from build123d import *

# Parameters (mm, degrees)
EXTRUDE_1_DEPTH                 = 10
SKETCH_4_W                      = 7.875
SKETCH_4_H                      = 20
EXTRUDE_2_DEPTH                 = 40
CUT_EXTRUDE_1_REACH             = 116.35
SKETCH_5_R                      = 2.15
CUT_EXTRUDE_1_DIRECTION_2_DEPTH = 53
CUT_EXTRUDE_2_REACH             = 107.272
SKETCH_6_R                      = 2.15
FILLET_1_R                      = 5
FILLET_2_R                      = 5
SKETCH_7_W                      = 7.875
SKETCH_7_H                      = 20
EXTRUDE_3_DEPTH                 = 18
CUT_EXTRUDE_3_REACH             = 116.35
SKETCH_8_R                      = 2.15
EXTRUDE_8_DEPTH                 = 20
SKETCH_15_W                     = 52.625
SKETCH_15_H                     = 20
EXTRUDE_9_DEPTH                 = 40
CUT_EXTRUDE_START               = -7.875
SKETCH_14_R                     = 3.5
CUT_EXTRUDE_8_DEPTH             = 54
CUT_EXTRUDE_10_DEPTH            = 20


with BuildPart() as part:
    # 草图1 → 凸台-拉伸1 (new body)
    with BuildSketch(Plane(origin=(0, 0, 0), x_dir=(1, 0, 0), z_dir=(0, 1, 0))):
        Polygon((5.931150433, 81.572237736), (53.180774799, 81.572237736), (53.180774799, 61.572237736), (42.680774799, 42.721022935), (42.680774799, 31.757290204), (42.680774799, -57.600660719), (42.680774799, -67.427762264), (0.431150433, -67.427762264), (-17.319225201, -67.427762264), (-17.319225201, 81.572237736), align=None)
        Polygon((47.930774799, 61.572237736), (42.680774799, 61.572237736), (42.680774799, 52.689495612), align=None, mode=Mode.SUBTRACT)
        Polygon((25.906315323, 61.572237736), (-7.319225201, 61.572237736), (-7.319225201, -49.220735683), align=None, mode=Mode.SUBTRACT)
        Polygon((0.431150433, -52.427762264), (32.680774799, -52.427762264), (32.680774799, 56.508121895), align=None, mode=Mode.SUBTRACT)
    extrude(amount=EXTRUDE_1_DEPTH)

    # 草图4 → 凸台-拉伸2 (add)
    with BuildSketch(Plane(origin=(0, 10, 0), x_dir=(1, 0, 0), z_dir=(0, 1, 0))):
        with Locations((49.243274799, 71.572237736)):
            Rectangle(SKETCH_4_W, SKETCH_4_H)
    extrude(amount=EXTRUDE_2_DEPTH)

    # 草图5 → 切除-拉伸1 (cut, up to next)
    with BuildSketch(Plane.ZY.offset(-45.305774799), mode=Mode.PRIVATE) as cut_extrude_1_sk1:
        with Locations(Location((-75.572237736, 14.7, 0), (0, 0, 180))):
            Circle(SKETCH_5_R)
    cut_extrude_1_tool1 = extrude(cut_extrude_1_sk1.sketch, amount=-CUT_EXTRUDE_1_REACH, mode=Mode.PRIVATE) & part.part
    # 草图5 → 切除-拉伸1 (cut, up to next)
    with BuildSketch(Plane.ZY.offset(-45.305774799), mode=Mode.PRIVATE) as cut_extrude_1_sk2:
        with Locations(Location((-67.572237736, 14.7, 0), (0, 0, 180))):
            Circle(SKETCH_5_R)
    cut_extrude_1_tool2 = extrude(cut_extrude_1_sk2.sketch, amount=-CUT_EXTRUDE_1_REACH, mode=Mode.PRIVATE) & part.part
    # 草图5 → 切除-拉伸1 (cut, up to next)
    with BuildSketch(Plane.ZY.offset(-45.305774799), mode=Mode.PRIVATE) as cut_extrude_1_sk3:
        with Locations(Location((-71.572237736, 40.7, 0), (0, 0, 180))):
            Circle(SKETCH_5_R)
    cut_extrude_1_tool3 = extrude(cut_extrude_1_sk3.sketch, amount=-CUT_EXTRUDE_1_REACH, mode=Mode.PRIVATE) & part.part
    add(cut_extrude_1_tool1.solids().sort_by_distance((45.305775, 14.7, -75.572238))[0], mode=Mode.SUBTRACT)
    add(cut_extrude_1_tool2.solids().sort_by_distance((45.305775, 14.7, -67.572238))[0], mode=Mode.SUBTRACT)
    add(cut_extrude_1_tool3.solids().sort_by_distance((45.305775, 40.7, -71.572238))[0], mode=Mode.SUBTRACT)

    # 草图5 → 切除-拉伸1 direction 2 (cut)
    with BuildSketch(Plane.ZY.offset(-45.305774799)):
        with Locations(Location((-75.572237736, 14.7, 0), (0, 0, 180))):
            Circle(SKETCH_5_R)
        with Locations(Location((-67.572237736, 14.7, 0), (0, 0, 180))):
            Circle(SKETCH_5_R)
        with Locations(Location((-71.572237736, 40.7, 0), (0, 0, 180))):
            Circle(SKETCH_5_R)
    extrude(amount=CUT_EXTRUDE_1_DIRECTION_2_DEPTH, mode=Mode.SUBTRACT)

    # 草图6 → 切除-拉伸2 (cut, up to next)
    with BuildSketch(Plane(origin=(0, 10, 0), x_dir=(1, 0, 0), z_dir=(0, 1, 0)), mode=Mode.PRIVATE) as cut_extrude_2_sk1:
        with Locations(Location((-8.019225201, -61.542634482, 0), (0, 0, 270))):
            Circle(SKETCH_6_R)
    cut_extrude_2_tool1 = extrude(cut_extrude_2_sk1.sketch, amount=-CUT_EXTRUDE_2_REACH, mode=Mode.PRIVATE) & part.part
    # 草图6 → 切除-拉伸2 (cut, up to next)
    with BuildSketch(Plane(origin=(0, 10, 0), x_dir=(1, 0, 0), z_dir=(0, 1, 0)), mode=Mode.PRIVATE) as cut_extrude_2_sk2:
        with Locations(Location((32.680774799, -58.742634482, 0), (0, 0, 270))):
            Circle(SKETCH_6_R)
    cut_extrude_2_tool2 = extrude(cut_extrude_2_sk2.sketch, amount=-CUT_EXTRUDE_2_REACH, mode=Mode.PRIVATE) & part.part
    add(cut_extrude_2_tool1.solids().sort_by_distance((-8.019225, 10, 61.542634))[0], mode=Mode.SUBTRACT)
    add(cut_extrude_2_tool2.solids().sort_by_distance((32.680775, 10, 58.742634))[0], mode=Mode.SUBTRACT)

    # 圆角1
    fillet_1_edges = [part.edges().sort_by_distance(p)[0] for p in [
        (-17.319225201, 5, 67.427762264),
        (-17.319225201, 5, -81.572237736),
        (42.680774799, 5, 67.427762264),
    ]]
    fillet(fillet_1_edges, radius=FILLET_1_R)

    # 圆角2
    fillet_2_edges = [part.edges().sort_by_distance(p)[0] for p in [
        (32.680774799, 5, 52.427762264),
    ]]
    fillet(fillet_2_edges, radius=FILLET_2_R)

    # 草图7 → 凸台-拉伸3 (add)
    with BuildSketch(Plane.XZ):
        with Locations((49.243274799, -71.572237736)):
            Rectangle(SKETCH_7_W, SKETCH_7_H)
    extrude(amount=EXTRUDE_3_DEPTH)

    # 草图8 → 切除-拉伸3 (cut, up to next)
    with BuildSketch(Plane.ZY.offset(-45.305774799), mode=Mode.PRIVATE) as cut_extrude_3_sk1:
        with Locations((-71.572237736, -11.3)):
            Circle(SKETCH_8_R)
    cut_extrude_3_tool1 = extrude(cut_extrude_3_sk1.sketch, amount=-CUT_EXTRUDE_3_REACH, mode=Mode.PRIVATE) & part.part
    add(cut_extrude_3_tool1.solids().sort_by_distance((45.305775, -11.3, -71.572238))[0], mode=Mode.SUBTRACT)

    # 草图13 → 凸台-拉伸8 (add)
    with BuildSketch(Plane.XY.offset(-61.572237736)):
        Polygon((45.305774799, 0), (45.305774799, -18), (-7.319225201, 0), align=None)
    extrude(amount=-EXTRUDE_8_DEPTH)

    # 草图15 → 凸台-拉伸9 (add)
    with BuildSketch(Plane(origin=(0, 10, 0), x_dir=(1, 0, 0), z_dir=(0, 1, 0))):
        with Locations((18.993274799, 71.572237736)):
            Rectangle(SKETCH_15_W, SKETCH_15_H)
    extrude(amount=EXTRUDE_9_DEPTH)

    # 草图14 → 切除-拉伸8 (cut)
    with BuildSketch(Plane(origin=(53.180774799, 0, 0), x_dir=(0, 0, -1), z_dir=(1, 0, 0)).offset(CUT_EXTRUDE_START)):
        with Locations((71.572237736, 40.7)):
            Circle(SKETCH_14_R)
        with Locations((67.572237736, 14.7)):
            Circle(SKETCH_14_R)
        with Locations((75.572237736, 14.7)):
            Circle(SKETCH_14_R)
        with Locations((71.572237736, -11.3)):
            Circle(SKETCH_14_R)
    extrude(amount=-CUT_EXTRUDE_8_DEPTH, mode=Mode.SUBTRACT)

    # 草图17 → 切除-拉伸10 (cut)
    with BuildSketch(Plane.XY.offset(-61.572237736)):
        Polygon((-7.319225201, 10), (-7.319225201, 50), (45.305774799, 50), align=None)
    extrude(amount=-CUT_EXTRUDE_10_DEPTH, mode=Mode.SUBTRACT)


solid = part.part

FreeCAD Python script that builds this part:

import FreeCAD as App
import Part
import Sketcher

V = App.Vector


def edges_at(feature, points):
    """Names of the edges that pass closest to the given points."""
    edges = feature.Shape.Edges
    near = lambda p: min(range(len(edges)), key=lambda i: edges[i].distToShape(Part.Vertex(*p))[0])
    return sorted({f"Edge{near(p) + 1}" for p in points})


def add_polygon(sketch, points):
    """Adds a closed chain of lines whose ends are joined by coincident constraints."""
    first, n = sketch.GeometryCount, len(points)
    for a, b in zip(points, points[1:] + points[:1]):
        sketch.addGeometry(Part.LineSegment(App.Vector(*a, 0), App.Vector(*b, 0)), False)
    for i in range(n):
        sketch.addConstraint(Sketcher.Constraint("Coincident", first + i, 2, first + (i + 1) % n, 1))

doc = App.newDocument("Part")
params = doc.addObject("Spreadsheet::Sheet", "Params")
for row, (alias, value) in enumerate([
    ("sketch1_width", "60 mm"),
    ("sketch1_height", "149 mm"),
    ("sketch1_height2", "20 mm"),
    ("sketch1_width2", "70.5 mm"),
    ("sketch1_width3", "5.25 mm"),
    ("pad1_length", "10 mm"),
    ("sketch2_height", "20 mm"),
    ("pad2_length", "40 mm"),
    ("sketch3_diameter", "4.3 mm"),
    ("sketch4_diameter", "4.3 mm"),
    ("sketch5_diameter", "4.3 mm"),
    ("sketch6_diameter", "4.3 mm"),
    ("pocket4_length", "53 mm"),
    ("sketch7_diameter", "4.3 mm"),
    ("sketch8_diameter", "4.3 mm"),
    ("fillet_radius", "5 mm"),
    ("fillet2_radius", "5 mm"),
    ("sketch9_height", "20 mm"),
    ("pad3_length", "18 mm"),
    ("sketch10_diameter", "4.3 mm"),
    ("sketch11_height", "18 mm"),
    ("pad4_length", "20 mm"),
    ("sketch12_height", "20 mm"),
    ("pad5_length", "40 mm"),
    ("sketch13_diameter", "7 mm"),
    ("pocket8_length", "54 mm"),
    ("sketch14_height", "40 mm"),
    ("pocket9_length", "20 mm"),
], start=1):
    params.set(f"A{row}", alias)
    params.set(f"B{row}", "=" + value)
    params.setAlias(f"B{row}", alias)

body = doc.addObject("PartDesign::Body", "Body")

sketch1 = body.newObject("Sketcher::SketchObject", "Sketch")
sketch1.AttachmentSupport = (doc.getObject("XZ_Plane"), [""])
sketch1.MapMode = "FlatFace"
add_polygon(sketch1, [(53.180775, -81.572238), (-17.319225, -81.572238), (-17.319225, 67.427762), (42.680775, 67.427762), (42.680775, -42.721023), (53.180775, -61.572238)])
add_polygon(sketch1, [(0.43115, 52.427762), (32.680775, -56.508122), (32.680775, 52.427762)])
add_polygon(sketch1, [(47.930775, -61.572238), (42.680775, -52.689496), (42.680775, -61.572238)])
add_polygon(sketch1, [(25.906315, -61.572238), (-7.319225, 49.220736), (-7.319225, -61.572238)])
sketch1.addConstraint(Sketcher.Constraint("Horizontal", 0))
sketch1.addConstraint(Sketcher.Constraint("Vertical", 1))
sketch1.addConstraint(Sketcher.Constraint("Horizontal", 2))
sketch1.addConstraint(Sketcher.Constraint("Vertical", 3))
sketch1.addConstraint(Sketcher.Constraint("Vertical", 5))
sketch1.addConstraint(Sketcher.Constraint("Vertical", 7))
sketch1.addConstraint(Sketcher.Constraint("Horizontal", 8))
sketch1.addConstraint(Sketcher.Constraint("Vertical", 10))
sketch1.addConstraint(Sketcher.Constraint("Horizontal", 11))
sketch1.addConstraint(Sketcher.Constraint("Vertical", 13))
sketch1.addConstraint(Sketcher.Constraint("Horizontal", 14))
sketch1.addConstraint(Sketcher.Constraint("Horizontal", 4, 2, 10, 2))
sketch1.addConstraint(Sketcher.Constraint("Horizontal", 11, 2, 13, 2))
sketch1.addConstraint(Sketcher.Constraint("Vertical", 3, 2, 9, 2))
sketch1.addConstraint(Sketcher.Constraint("DistanceX", 2, 1, 2, 2, 60.0))
sketch1.addConstraint(Sketcher.Constraint("DistanceY", 1, 1, 1, 2, 149.0))
sketch1.addConstraint(Sketcher.Constraint("DistanceY", 5, 2, 5, 1, 20.0))
sketch1.addConstraint(Sketcher.Constraint("DistanceX", 0, 2, 0, 1, 70.5))
sketch1.addConstraint(Sketcher.Constraint("DistanceX", 6, 2, 3, 2, 10.0))
sketch1.addConstraint(Sketcher.Constraint("DistanceY", 7, 2, 2, 2, 15.0))
sketch1.addConstraint(Sketcher.Constraint("DistanceX", 1, 2, 12, 2, 10.0))
sketch1.addConstraint(Sketcher.Constraint("DistanceX", 11, 1, 11, 2, 5.25))
sketch1.addConstraint(Sketcher.Constraint("DistanceX", 14, 1, 14, 2, 33.225541))
sketch1.addConstraint(Sketcher.Constraint("DistanceY", 6, 2, 3, 2, 13.787099))
sketch1.addConstraint(Sketcher.Constraint("Distance", 4, 21.57819))
sketch1.addConstraint(Sketcher.Constraint("Distance", 12, 115.667712))
sketch1.addConstraint(Sketcher.Constraint("DistanceX", 8, 2, 8, 1, 32.249624))
sketch1.addConstraint(Sketcher.Constraint("DistanceY", 10, 2, 10, 1, 8.882742))
sketch1.addConstraint(Sketcher.Constraint("DistanceY", 6, 2, -1, 1, 56.508122))
sketch1.addConstraint(Sketcher.Constraint("DistanceX", -1, 1, 8, 2, 0.43115))
sketch1.setExpression("Constraints[29]", "Params.sketch1_width")
sketch1.setExpression("Constraints[30]", "Params.sketch1_height")
sketch1.setExpression("Constraints[31]", "Params.sketch1_height2")
sketch1.setExpression("Constraints[32]", "Params.sketch1_width2")
sketch1.setExpression("Constraints[36]", "Params.sketch1_width3")
pad1 = body.newObject("PartDesign::Pad", "Pad")
pad1.Profile = sketch1
pad1.setExpression("Length", "Params.pad1_length")
pad1.Reversed = True

sketch2 = body.newObject("Sketcher::SketchObject", "Sketch001")
sketch2.AttachmentSupport = (doc.getObject("XZ_Plane"), [""])
sketch2.MapMode = "FlatFace"
sketch2.AttachmentOffset = App.Placement(V(0, 0, -10), App.Rotation())
add_polygon(sketch2, [(45.305775, -81.572238), (45.305775, -61.572238), (53.180775, -61.572238), (53.180775, -81.572238)])
sketch2.addConstraint(Sketcher.Constraint("Vertical", 0))
sketch2.addConstraint(Sketcher.Constraint("Horizontal", 1))
sketch2.addConstraint(Sketcher.Constraint("Vertical", 2))
sketch2.addConstraint(Sketcher.Constraint("Horizontal", 3))
sketch2.addConstraint(Sketcher.Constraint("DistanceY", 0, 1, 0, 2, 20.0))
sketch2.addConstraint(Sketcher.Constraint("DistanceX", 1, 1, 1, 2, 7.875))
sketch2.addConstraint(Sketcher.Constraint("DistanceX", -1, 1, 0, 2, 45.305775))
sketch2.addConstraint(Sketcher.Constraint("DistanceY", 0, 2, -1, 1, 61.572238))
sketch2.setExpression("Constraints[8]", "Params.sketch2_height")
pad2 = body.newObject("PartDesign::Pad", "Pad001")
pad2.Profile = sketch2
pad2.setExpression("Length", "Params.pad2_length")
pad2.Reversed = True

sketch3 = body.newObject("Sketcher::SketchObject", "Sketch002")
sketch3.AttachmentSupport = (doc.getObject("YZ_Plane"), [""])
sketch3.MapMode = "FlatFace"
sketch3.AttachmentOffset = App.Placement(V(0, 0, 45.305775), App.Rotation())
sketch3.addGeometry(Part.Circle(V(14.7, -75.572238, 0), V(0, 0, 1), 2.15), False)
sketch3.addConstraint(Sketcher.Constraint("Diameter", 0, 4.3))
sketch3.addConstraint(Sketcher.Constraint("DistanceX", -1, 1, 0, 3, 14.7))
sketch3.addConstraint(Sketcher.Constraint("DistanceY", 0, 3, -1, 1, 75.572238))
sketch3.setExpression("Constraints[0]", "Params.sketch3_diameter")
pocket1 = body.newObject("PartDesign::Pocket", "Pocket")
pocket1.Profile = sketch3
pocket1.Type = "UpToFirst"
pocket1.Reversed = True

sketch4 = body.newObject("Sketcher::SketchObject", "Sketch003")
sketch4.AttachmentSupport = (doc.getObject("YZ_Plane"), [""])
sketch4.MapMode = "FlatFace"
sketch4.AttachmentOffset = App.Placement(V(0, 0, 45.305775), App.Rotation())
sketch4.addGeometry(Part.Circle(V(14.7, -67.572238, 0), V(0, 0, 1), 2.15), False)
sketch4.addConstraint(Sketcher.Constraint("Diameter", 0, 4.3))
sketch4.addConstraint(Sketcher.Constraint("DistanceX", -1, 1, 0, 3, 14.7))
sketch4.addConstraint(Sketcher.Constraint("DistanceY", 0, 3, -1, 1, 67.572238))
sketch4.setExpression("Constraints[0]", "Params.sketch4_diameter")
pocket2 = body.newObject("PartDesign::Pocket", "Pocket001")
pocket2.Profile = sketch4
pocket2.Type = "UpToFirst"
pocket2.Reversed = True

sketch5 = body.newObject("Sketcher::SketchObject", "Sketch004")
sketch5.AttachmentSupport = (doc.getObject("YZ_Plane"), [""])
sketch5.MapMode = "FlatFace"
sketch5.AttachmentOffset = App.Placement(V(0, 0, 45.305775), App.Rotation())
sketch5.addGeometry(Part.Circle(V(40.7, -71.572238, 0), V(0, 0, 1), 2.15), False)
sketch5.addConstraint(Sketcher.Constraint("Diameter", 0, 4.3))
sketch5.addConstraint(Sketcher.Constraint("DistanceX", -1, 1, 0, 3, 40.7))
sketch5.addConstraint(Sketcher.Constraint("DistanceY", 0, 3, -1, 1, 71.572238))
sketch5.setExpression("Constraints[0]", "Params.sketch5_diameter")
pocket3 = body.newObject("PartDesign::Pocket", "Pocket002")
pocket3.Profile = sketch5
pocket3.Type = "UpToFirst"
pocket3.Reversed = True

sketch6 = body.newObject("Sketcher::SketchObject", "Sketch005")
sketch6.AttachmentSupport = (doc.getObject("YZ_Plane"), [""])
sketch6.MapMode = "FlatFace"
sketch6.AttachmentOffset = App.Placement(V(0, 0, 45.305775), App.Rotation())
sketch6.addGeometry(Part.Circle(V(14.7, -75.572238, 0), V(0, 0, 1), 2.15), False)
sketch6.addGeometry(Part.Circle(V(14.7, -67.572238, 0), V(0, 0, 1), 2.15), False)
sketch6.addGeometry(Part.Circle(V(40.7, -71.572238, 0), V(0, 0, 1), 2.15), False)
sketch6.addConstraint(Sketcher.Constraint("Equal", 0, 1))
sketch6.addConstraint(Sketcher.Constraint("Equal", 1, 2))
sketch6.addConstraint(Sketcher.Constraint("Vertical", 0, 3, 1, 3))
sketch6.addConstraint(Sketcher.Constraint("Diameter", 0, 4.3))
sketch6.addConstraint(Sketcher.Constraint("DistanceY", 0, 3, 1, 3, 8.0))
sketch6.addConstraint(Sketcher.Constraint("DistanceX", 0, 3, 2, 3, 26.0))
sketch6.addConstraint(Sketcher.Constraint("DistanceY", 0, 3, 2, 3, 4.0))
sketch6.addConstraint(Sketcher.Constraint("DistanceX", -1, 1, 0, 3, 14.7))
sketch6.addConstraint(Sketcher.Constraint("DistanceY", 0, 3, -1, 1, 75.572238))
sketch6.setExpression("Constraints[3]", "Params.sketch6_diameter")
pocket4 = body.newObject("PartDesign::Pocket", "Pocket003")
pocket4.Profile = sketch6
pocket4.setExpression("Length", "Params.pocket4_length")

sketch7 = body.newObject("Sketcher::SketchObject", "Sketch006")
sketch7.AttachmentSupport = (doc.getObject("XZ_Plane"), [""])
sketch7.MapMode = "FlatFace"
sketch7.AttachmentOffset = App.Placement(V(0, 0, -10), App.Rotation())
sketch7.addGeometry(Part.Circle(V(-8.019225, 61.542634, 0), V(0, 0, 1), 2.15), False)
sketch7.addConstraint(Sketcher.Constraint("Diameter", 0, 4.3))
sketch7.addConstraint(Sketcher.Constraint("DistanceX", 0, 3, -1, 1, 8.019225))
sketch7.addConstraint(Sketcher.Constraint("DistanceY", -1, 1, 0, 3, 61.542634))
sketch7.setExpression("Constraints[0]", "Params.sketch7_diameter")
pocket5 = body.newObject("PartDesign::Pocket", "Pocket004")
pocket5.Profile = sketch7
pocket5.Type = "UpToFirst"
pocket5.Reversed = True

sketch8 = body.newObject("Sketcher::SketchObject", "Sketch007")
sketch8.AttachmentSupport = (doc.getObject("XZ_Plane"), [""])
sketch8.MapMode = "FlatFace"
sketch8.AttachmentOffset = App.Placement(V(0, 0, -10), App.Rotation())
sketch8.addGeometry(Part.Circle(V(32.680775, 58.742634, 0), V(0, 0, 1), 2.15), False)
sketch8.addConstraint(Sketcher.Constraint("Diameter", 0, 4.3))
sketch8.addConstraint(Sketcher.Constraint("DistanceX", -1, 1, 0, 3, 32.680775))
sketch8.addConstraint(Sketcher.Constraint("DistanceY", -1, 1, 0, 3, 58.742634))
sketch8.setExpression("Constraints[0]", "Params.sketch8_diameter")
pocket6 = body.newObject("PartDesign::Pocket", "Pocket005")
pocket6.Profile = sketch8
pocket6.Type = "UpToFirst"
pocket6.Reversed = True
doc.recompute()

fillet = body.newObject("PartDesign::Fillet", "Fillet")
fillet.Base = (pocket6, edges_at(pocket6, [(-17.319, 5, 67.428), (-17.319, 5, -81.572), (42.681, 5, 67.428)]))
fillet.setExpression("Radius", "Params.fillet_radius")
doc.recompute()

fillet2 = body.newObject("PartDesign::Fillet", "Fillet001")
fillet2.Base = (fillet, edges_at(fillet, [(32.681, 5, 52.428)]))
fillet2.setExpression("Radius", "Params.fillet2_radius")

sketch9 = body.newObject("Sketcher::SketchObject", "Sketch008")
sketch9.AttachmentSupport = (doc.getObject("XZ_Plane"), [""])
sketch9.MapMode = "FlatFace"
add_polygon(sketch9, [(45.305775, -61.572238), (45.305775, -81.572238), (53.180775, -81.572238), (53.180775, -61.572238)])
sketch9.addConstraint(Sketcher.Constraint("Vertical", 0))
sketch9.addConstraint(Sketcher.Constraint("Horizontal", 1))
sketch9.addConstraint(Sketcher.Constraint("Vertical", 2))
sketch9.addConstraint(Sketcher.Constraint("Horizontal", 3))
sketch9.addConstraint(Sketcher.Constraint("DistanceY", 0, 2, 0, 1, 20.0))
sketch9.addConstraint(Sketcher.Constraint("DistanceX", 1, 1, 1, 2, 7.875))
sketch9.addConstraint(Sketcher.Constraint("DistanceX", -1, 1, 0, 2, 45.305775))
sketch9.addConstraint(Sketcher.Constraint("DistanceY", 0, 2, -1, 1, 81.572238))
sketch9.setExpression("Constraints[8]", "Params.sketch9_height")
pad3 = body.newObject("PartDesign::Pad", "Pad002")
pad3.Profile = sketch9
pad3.setExpression("Length", "Params.pad3_length")

sketch10 = body.newObject("Sketcher::SketchObject", "Sketch009")
sketch10.AttachmentSupport = (doc.getObject("YZ_Plane"), [""])
sketch10.MapMode = "FlatFace"
sketch10.AttachmentOffset = App.Placement(V(0, 0, 45.305775), App.Rotation())
sketch10.addGeometry(Part.Circle(V(-11.3, -71.572238, 0), V(0, 0, 1), 2.15), False)
sketch10.addConstraint(Sketcher.Constraint("Diameter", 0, 4.3))
sketch10.addConstraint(Sketcher.Constraint("DistanceX", 0, 3, -1, 1, 11.3))
sketch10.addConstraint(Sketcher.Constraint("DistanceY", 0, 3, -1, 1, 71.572238))
sketch10.setExpression("Constraints[0]", "Params.sketch10_diameter")
pocket7 = body.newObject("PartDesign::Pocket", "Pocket006")
pocket7.Profile = sketch10
pocket7.Type = "UpToFirst"
pocket7.Reversed = True

sketch11 = body.newObject("Sketcher::SketchObject", "Sketch010")
sketch11.AttachmentSupport = (doc.getObject("XY_Plane"), [""])
sketch11.MapMode = "FlatFace"
sketch11.AttachmentOffset = App.Placement(V(0, 0, -61.572238), App.Rotation())
add_polygon(sketch11, [(45.305775, -18), (45.305775, 0), (-7.319225, 0)])
sketch11.addConstraint(Sketcher.Constraint("Vertical", 0))
sketch11.addConstraint(Sketcher.Constraint("Horizontal", 1))
sketch11.addConstraint(Sketcher.Constraint("PointOnObject", 0, 2, -1))
sketch11.addConstraint(Sketcher.Constraint("DistanceY", 0, 1, 0, 2, 18.0))
sketch11.addConstraint(Sketcher.Constraint("DistanceX", 1, 2, 1, 1, 52.625))
sketch11.addConstraint(Sketcher.Constraint("DistanceX", -1, 1, 0, 2, 45.305775))
sketch11.setExpression("Constraints[6]", "Params.sketch11_height")
pad4 = body.newObject("PartDesign::Pad", "Pad003")
pad4.Profile = sketch11
pad4.setExpression("Length", "Params.pad4_length")
pad4.Reversed = True

sketch12 = body.newObject("Sketcher::SketchObject", "Sketch011")
sketch12.AttachmentSupport = (doc.getObject("XZ_Plane"), [""])
sketch12.MapMode = "FlatFace"
sketch12.AttachmentOffset = App.Placement(V(0, 0, -10), App.Rotation())
add_polygon(sketch12, [(-7.319225, -81.572238), (-7.319225, -61.572238), (45.305775, -61.572238), (45.305775, -81.572238)])
sketch12.addConstraint(Sketcher.Constraint("Vertical", 0))
sketch12.addConstraint(Sketcher.Constraint("Horizontal", 1))
sketch12.addConstraint(Sketcher.Constraint("Vertical", 2))
sketch12.addConstraint(Sketcher.Constraint("Horizontal", 3))
sketch12.addConstraint(Sketcher.Constraint("DistanceY", 0, 1, 0, 2, 20.0))
sketch12.addConstraint(Sketcher.Constraint("DistanceX", 1, 1, 1, 2, 52.625))
sketch12.addConstraint(Sketcher.Constraint("DistanceX", 0, 2, -1, 1, 7.319225))
sketch12.addConstraint(Sketcher.Constraint("DistanceY", 0, 2, -1, 1, 61.572238))
sketch12.setExpression("Constraints[8]", "Params.sketch12_height")
pad5 = body.newObject("PartDesign::Pad", "Pad004")
pad5.Profile = sketch12
pad5.setExpression("Length", "Params.pad5_length")
pad5.Reversed = True

sketch13 = body.newObject("Sketcher::SketchObject", "Sketch012")
sketch13.AttachmentSupport = (doc.getObject("YZ_Plane"), [""])
sketch13.MapMode = "FlatFace"
sketch13.AttachmentOffset = App.Placement(V(0, 0, 45.305775), App.Rotation())
sketch13.addGeometry(Part.Circle(V(40.7, -71.572238, 0), V(0, 0, 1), 3.5), False)
sketch13.addGeometry(Part.Circle(V(14.7, -67.572238, 0), V(0, 0, 1), 3.5), False)
sketch13.addGeometry(Part.Circle(V(14.7, -75.572238, 0), V(0, 0, 1), 3.5), False)
sketch13.addGeometry(Part.Circle(V(-11.3, -71.572238, 0), V(0, 0, 1), 3.5), False)
sketch13.addConstraint(Sketcher.Constraint("Equal", 0, 1))
sketch13.addConstraint(Sketcher.Constraint("Equal", 1, 2))
sketch13.addConstraint(Sketcher.Constraint("Equal", 2, 3))
sketch13.addConstraint(Sketcher.Constraint("Horizontal", 0, 3, 3, 3))
sketch13.addConstraint(Sketcher.Constraint("Vertical", 1, 3, 2, 3))
sketch13.addConstraint(Sketcher.Constraint("Diameter", 0, 7.0))
sketch13.addConstraint(Sketcher.Constraint("DistanceX", 1, 3, 0, 3, 26.0))
sketch13.addConstraint(Sketcher.Constraint("DistanceY", 0, 3, 1, 3, 4.0))
sketch13.addConstraint(Sketcher.Constraint("DistanceY", 2, 3, 1, 3, 8.0))
sketch13.addConstraint(Sketcher.Constraint("DistanceX", 3, 3, 1, 3, 26.0))
sketch13.addConstraint(Sketcher.Constraint("DistanceX", -1, 1, 0, 3, 40.7))
sketch13.addConstraint(Sketcher.Constraint("DistanceY", 0, 3, -1, 1, 71.572238))
sketch13.setExpression("Constraints[5]", "Params.sketch13_diameter")
pocket8 = body.newObject("PartDesign::Pocket", "Pocket007")
pocket8.Profile = sketch13
pocket8.setExpression("Length", "Params.pocket8_length")

sketch14 = body.newObject("Sketcher::SketchObject", "Sketch013")
sketch14.AttachmentSupport = (doc.getObject("XY_Plane"), [""])
sketch14.MapMode = "FlatFace"
sketch14.AttachmentOffset = App.Placement(V(0, 0, -61.572238), App.Rotation())
add_polygon(sketch14, [(-7.319225, 50), (-7.319225, 10), (45.305775, 50)])
sketch14.addConstraint(Sketcher.Constraint("Vertical", 0))
sketch14.addConstraint(Sketcher.Constraint("Horizontal", 2))
sketch14.addConstraint(Sketcher.Constraint("DistanceY", 0, 2, 0, 1, 40.0))
sketch14.addConstraint(Sketcher.Constraint("DistanceY", -1, 1, 0, 2, 10.0))
sketch14.addConstraint(Sketcher.Constraint("DistanceX", 2, 2, 2, 1, 52.625))
sketch14.addConstraint(Sketcher.Constraint("DistanceX", 0, 2, -1, 1, 7.319225))
sketch14.setExpression("Constraints[5]", "Params.sketch14_height")
pocket9 = body.newObject("PartDesign::Pocket", "Pocket008")
pocket9.Profile = sketch14
pocket9.setExpression("Length", "Params.pocket9_length")

doc.recompute()
